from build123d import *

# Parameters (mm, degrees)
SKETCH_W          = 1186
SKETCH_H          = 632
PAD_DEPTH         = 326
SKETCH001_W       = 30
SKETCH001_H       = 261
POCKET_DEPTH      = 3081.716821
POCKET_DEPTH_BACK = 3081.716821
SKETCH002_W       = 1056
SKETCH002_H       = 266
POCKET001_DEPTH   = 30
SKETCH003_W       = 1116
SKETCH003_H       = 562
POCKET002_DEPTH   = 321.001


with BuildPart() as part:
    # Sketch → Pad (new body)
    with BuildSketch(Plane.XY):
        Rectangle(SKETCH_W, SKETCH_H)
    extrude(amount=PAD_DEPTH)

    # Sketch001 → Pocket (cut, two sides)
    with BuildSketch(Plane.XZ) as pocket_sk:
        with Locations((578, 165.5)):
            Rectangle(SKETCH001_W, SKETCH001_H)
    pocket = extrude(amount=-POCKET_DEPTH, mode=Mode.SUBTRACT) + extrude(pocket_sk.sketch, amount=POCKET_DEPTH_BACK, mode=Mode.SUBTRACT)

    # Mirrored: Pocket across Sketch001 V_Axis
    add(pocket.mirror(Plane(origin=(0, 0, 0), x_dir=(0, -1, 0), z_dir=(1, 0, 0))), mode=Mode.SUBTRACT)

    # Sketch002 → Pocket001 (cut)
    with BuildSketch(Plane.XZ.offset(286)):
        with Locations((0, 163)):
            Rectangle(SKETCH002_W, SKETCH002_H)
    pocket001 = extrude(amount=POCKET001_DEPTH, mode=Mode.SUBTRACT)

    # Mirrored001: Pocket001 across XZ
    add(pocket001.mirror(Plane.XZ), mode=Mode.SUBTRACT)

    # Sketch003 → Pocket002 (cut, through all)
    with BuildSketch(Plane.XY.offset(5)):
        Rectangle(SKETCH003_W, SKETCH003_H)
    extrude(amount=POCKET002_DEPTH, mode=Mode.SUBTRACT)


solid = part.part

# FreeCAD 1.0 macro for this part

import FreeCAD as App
import Part
import Sketcher
from FreeCAD import Vector
Q = App.Units.Quantity

doc = App.newDocument("Part")
body = doc.addObject("PartDesign::Body", "Body")

# Sketch on XY plane
sketch1 = body.newObject("Sketcher::SketchObject", "Sketch")
sketch1.AttachmentSupport = (doc.getObject("XY_Plane"), [""])
sketch1.MapMode = "FlatFace"
sketch1.addGeometry([
    Part.LineSegment(Vector(-593, 316, 0), Vector(-593, -316, 0)),
    Part.LineSegment(Vector(-593, -316, 0), Vector(593, -316, 0)),
    Part.LineSegment(Vector(593, -316, 0), Vector(593, 316, 0)),
    Part.LineSegment(Vector(593, 316, 0), Vector(-593, 316, 0)),
], False)
sketch1.addConstraint([
    Sketcher.Constraint("Coincident", 0, 2, 1, 1),
    Sketcher.Constraint("Coincident", 1, 2, 2, 1),
    Sketcher.Constraint("Coincident", 2, 2, 3, 1),
    Sketcher.Constraint("Coincident", 3, 2, 0, 1),
    Sketcher.Constraint("Vertical", 0),
    Sketcher.Constraint("Horizontal", 1),
    Sketcher.Constraint("Vertical", 2),
    Sketcher.Constraint("Horizontal", 3),
    Sketcher.Constraint("Symmetric", 0, 2, 2, 2, -1, 1),
    Sketcher.Constraint("DistanceX", 1, 1, 1, 2, Q("1186 mm")),
    Sketcher.Constraint("DistanceY", 0, 2, 0, 1, Q("632 mm")),
])
pad1 = body.newObject("PartDesign::Pad", "Pad")
pad1.Profile = sketch1
pad1.Length = 326

# Sketch on XZ plane
sketch2 = body.newObject("Sketcher::SketchObject", "Sketch001")
sketch2.AttachmentSupport = (doc.getObject("XZ_Plane"), [""])
sketch2.MapMode = "FlatFace"
sketch2.addGeometry([
    Part.LineSegment(Vector(563, 296, 0), Vector(563, 35, 0)),
    Part.LineSegment(Vector(563, 35, 0), Vector(593, 35, 0)),
    Part.LineSegment(Vector(593, 35, 0), Vector(593, 296, 0)),
    Part.LineSegment(Vector(593, 296, 0), Vector(563, 296, 0)),
], False)
sketch2.addConstraint([
    Sketcher.Constraint("Coincident", 0, 2, 1, 1),
    Sketcher.Constraint("Coincident", 1, 2, 2, 1),
    Sketcher.Constraint("Coincident", 2, 2, 3, 1),
    Sketcher.Constraint("Coincident", 3, 2, 0, 1),
    Sketcher.Constraint("Vertical", 0),
    Sketcher.Constraint("Horizontal", 1),
    Sketcher.Constraint("Vertical", 2),
    Sketcher.Constraint("Horizontal", 3),
    Sketcher.Constraint("DistanceX", 1, 1, 1, 2, Q("30 mm")),
    Sketcher.Constraint("DistanceY", 0, 2, 0, 1, Q("261 mm")),
    Sketcher.Constraint("DistanceX", -1, 1, 0, 2, Q("563 mm")),
    Sketcher.Constraint("DistanceY", -1, 1, 0, 2, Q("35 mm")),
])
pocket1 = body.newObject("PartDesign::Pocket", "Pocket")
pocket1.Profile = sketch2
pocket1.Type = "ThroughAll"
pocket1.Midplane = True
doc.recompute()

mirrored = body.newObject("PartDesign::Mirrored", "Mirrored")
mirrored.Originals = [pocket1]
mirrored.MirrorPlane = (doc.getObject("YZ_Plane"), [""])
body.Tip = mirrored

# Sketch on XZ plane
sketch3 = body.newObject("Sketcher::SketchObject", "Sketch002")
sketch3.AttachmentSupport = (doc.getObject("XZ_Plane"), [""])
sketch3.MapMode = "FlatFace"
sketch3.AttachmentOffset = App.Placement(Vector(0, 0, 286), App.Rotation())
sketch3.addGeometry([
    Part.LineSegment(Vector(-528, 296, 0), Vector(-528, 30, 0)),
    Part.LineSegment(Vector(-528, 30, 0), Vector(528, 30, 0)),
    Part.LineSegment(Vector(528, 30, 0), Vector(528, 296, 0)),
    Part.LineSegment(Vector(528, 296, 0), Vector(-528, 296, 0)),
], False)
sketch3.addConstraint([
    Sketcher.Constraint("Coincident", 0, 2, 1, 1),
    Sketcher.Constraint("Coincident", 1, 2, 2, 1),
    Sketcher.Constraint("Coincident", 2, 2, 3, 1),
    Sketcher.Constraint("Coincident", 3, 2, 0, 1),
    Sketcher.Constraint("Vertical", 0),
    Sketcher.Constraint("Horizontal", 1),
    Sketcher.Constraint("Vertical", 2),
    Sketcher.Constraint("Horizontal", 3),
    Sketcher.Constraint("DistanceX", 1, 1, 1, 2, Q("1056 mm")),
    Sketcher.Constraint("DistanceY", 0, 2, 0, 1, Q("266 mm")),
    Sketcher.Constraint("DistanceX", 0, 2, -1, 1, Q("528 mm")),
    Sketcher.Constraint("DistanceY", -1, 1, 0, 2, Q("30 mm")),
])
pocket2 = body.newObject("PartDesign::Pocket", "Pocket001")
pocket2.Profile = sketch3
pocket2.Length = 30
pocket2.Reversed = True
doc.recompute()

mirrored2 = body.newObject("PartDesign::Mirrored", "Mirrored001")
mirrored2.Originals = [pocket2]
mirrored2.MirrorPlane = (doc.getObject("XZ_Plane"), [""])
body.Tip = mirrored2

# Sketch on XY plane
sketch4 = body.newObject("Sketcher::SketchObject", "Sketch003")
sketch4.AttachmentSupport = (doc.getObject("XY_Plane"), [""])
sketch4.MapMode = "FlatFace"
sketch4.AttachmentOffset = App.Placement(Vector(0, 0, 5), App.Rotation())
sketch4.addGeometry([
    Part.LineSegment(Vector(-558, 281, 0), Vector(-558, -281, 0)),
    Part.LineSegment(Vector(-558, -281, 0), Vector(558, -281, 0)),
    Part.LineSegment(Vector(558, -281, 0), Vector(558, 281, 0)),
    Part.LineSegment(Vector(558, 281, 0), Vector(-558, 281, 0)),
], False)
sketch4.addConstraint([
    Sketcher.Constraint("Coincident", 0, 2, 1, 1),
    Sketcher.Constraint("Coincident", 1, 2, 2, 1),
    Sketcher.Constraint("Coincident", 2, 2, 3, 1),
    Sketcher.Constraint("Coincident", 3, 2, 0, 1),
    Sketcher.Constraint("Vertical", 0),
    Sketcher.Constraint("Horizontal", 1),
    Sketcher.Constraint("Vertical", 2),
    Sketcher.Constraint("Horizontal", 3),
    Sketcher.Constraint("Symmetric", 0, 2, 2, 2, -1, 1),
    Sketcher.Constraint("DistanceX", 1, 1, 1, 2, Q("1116 mm")),
    Sketcher.Constraint("DistanceY", 0, 2, 0, 1, Q("562 mm")),
])
pocket3 = body.newObject("PartDesign::Pocket", "Pocket002")
pocket3.Profile = sketch4
pocket3.Type = "ThroughAll"
pocket3.Reversed = True

doc.recompute()
